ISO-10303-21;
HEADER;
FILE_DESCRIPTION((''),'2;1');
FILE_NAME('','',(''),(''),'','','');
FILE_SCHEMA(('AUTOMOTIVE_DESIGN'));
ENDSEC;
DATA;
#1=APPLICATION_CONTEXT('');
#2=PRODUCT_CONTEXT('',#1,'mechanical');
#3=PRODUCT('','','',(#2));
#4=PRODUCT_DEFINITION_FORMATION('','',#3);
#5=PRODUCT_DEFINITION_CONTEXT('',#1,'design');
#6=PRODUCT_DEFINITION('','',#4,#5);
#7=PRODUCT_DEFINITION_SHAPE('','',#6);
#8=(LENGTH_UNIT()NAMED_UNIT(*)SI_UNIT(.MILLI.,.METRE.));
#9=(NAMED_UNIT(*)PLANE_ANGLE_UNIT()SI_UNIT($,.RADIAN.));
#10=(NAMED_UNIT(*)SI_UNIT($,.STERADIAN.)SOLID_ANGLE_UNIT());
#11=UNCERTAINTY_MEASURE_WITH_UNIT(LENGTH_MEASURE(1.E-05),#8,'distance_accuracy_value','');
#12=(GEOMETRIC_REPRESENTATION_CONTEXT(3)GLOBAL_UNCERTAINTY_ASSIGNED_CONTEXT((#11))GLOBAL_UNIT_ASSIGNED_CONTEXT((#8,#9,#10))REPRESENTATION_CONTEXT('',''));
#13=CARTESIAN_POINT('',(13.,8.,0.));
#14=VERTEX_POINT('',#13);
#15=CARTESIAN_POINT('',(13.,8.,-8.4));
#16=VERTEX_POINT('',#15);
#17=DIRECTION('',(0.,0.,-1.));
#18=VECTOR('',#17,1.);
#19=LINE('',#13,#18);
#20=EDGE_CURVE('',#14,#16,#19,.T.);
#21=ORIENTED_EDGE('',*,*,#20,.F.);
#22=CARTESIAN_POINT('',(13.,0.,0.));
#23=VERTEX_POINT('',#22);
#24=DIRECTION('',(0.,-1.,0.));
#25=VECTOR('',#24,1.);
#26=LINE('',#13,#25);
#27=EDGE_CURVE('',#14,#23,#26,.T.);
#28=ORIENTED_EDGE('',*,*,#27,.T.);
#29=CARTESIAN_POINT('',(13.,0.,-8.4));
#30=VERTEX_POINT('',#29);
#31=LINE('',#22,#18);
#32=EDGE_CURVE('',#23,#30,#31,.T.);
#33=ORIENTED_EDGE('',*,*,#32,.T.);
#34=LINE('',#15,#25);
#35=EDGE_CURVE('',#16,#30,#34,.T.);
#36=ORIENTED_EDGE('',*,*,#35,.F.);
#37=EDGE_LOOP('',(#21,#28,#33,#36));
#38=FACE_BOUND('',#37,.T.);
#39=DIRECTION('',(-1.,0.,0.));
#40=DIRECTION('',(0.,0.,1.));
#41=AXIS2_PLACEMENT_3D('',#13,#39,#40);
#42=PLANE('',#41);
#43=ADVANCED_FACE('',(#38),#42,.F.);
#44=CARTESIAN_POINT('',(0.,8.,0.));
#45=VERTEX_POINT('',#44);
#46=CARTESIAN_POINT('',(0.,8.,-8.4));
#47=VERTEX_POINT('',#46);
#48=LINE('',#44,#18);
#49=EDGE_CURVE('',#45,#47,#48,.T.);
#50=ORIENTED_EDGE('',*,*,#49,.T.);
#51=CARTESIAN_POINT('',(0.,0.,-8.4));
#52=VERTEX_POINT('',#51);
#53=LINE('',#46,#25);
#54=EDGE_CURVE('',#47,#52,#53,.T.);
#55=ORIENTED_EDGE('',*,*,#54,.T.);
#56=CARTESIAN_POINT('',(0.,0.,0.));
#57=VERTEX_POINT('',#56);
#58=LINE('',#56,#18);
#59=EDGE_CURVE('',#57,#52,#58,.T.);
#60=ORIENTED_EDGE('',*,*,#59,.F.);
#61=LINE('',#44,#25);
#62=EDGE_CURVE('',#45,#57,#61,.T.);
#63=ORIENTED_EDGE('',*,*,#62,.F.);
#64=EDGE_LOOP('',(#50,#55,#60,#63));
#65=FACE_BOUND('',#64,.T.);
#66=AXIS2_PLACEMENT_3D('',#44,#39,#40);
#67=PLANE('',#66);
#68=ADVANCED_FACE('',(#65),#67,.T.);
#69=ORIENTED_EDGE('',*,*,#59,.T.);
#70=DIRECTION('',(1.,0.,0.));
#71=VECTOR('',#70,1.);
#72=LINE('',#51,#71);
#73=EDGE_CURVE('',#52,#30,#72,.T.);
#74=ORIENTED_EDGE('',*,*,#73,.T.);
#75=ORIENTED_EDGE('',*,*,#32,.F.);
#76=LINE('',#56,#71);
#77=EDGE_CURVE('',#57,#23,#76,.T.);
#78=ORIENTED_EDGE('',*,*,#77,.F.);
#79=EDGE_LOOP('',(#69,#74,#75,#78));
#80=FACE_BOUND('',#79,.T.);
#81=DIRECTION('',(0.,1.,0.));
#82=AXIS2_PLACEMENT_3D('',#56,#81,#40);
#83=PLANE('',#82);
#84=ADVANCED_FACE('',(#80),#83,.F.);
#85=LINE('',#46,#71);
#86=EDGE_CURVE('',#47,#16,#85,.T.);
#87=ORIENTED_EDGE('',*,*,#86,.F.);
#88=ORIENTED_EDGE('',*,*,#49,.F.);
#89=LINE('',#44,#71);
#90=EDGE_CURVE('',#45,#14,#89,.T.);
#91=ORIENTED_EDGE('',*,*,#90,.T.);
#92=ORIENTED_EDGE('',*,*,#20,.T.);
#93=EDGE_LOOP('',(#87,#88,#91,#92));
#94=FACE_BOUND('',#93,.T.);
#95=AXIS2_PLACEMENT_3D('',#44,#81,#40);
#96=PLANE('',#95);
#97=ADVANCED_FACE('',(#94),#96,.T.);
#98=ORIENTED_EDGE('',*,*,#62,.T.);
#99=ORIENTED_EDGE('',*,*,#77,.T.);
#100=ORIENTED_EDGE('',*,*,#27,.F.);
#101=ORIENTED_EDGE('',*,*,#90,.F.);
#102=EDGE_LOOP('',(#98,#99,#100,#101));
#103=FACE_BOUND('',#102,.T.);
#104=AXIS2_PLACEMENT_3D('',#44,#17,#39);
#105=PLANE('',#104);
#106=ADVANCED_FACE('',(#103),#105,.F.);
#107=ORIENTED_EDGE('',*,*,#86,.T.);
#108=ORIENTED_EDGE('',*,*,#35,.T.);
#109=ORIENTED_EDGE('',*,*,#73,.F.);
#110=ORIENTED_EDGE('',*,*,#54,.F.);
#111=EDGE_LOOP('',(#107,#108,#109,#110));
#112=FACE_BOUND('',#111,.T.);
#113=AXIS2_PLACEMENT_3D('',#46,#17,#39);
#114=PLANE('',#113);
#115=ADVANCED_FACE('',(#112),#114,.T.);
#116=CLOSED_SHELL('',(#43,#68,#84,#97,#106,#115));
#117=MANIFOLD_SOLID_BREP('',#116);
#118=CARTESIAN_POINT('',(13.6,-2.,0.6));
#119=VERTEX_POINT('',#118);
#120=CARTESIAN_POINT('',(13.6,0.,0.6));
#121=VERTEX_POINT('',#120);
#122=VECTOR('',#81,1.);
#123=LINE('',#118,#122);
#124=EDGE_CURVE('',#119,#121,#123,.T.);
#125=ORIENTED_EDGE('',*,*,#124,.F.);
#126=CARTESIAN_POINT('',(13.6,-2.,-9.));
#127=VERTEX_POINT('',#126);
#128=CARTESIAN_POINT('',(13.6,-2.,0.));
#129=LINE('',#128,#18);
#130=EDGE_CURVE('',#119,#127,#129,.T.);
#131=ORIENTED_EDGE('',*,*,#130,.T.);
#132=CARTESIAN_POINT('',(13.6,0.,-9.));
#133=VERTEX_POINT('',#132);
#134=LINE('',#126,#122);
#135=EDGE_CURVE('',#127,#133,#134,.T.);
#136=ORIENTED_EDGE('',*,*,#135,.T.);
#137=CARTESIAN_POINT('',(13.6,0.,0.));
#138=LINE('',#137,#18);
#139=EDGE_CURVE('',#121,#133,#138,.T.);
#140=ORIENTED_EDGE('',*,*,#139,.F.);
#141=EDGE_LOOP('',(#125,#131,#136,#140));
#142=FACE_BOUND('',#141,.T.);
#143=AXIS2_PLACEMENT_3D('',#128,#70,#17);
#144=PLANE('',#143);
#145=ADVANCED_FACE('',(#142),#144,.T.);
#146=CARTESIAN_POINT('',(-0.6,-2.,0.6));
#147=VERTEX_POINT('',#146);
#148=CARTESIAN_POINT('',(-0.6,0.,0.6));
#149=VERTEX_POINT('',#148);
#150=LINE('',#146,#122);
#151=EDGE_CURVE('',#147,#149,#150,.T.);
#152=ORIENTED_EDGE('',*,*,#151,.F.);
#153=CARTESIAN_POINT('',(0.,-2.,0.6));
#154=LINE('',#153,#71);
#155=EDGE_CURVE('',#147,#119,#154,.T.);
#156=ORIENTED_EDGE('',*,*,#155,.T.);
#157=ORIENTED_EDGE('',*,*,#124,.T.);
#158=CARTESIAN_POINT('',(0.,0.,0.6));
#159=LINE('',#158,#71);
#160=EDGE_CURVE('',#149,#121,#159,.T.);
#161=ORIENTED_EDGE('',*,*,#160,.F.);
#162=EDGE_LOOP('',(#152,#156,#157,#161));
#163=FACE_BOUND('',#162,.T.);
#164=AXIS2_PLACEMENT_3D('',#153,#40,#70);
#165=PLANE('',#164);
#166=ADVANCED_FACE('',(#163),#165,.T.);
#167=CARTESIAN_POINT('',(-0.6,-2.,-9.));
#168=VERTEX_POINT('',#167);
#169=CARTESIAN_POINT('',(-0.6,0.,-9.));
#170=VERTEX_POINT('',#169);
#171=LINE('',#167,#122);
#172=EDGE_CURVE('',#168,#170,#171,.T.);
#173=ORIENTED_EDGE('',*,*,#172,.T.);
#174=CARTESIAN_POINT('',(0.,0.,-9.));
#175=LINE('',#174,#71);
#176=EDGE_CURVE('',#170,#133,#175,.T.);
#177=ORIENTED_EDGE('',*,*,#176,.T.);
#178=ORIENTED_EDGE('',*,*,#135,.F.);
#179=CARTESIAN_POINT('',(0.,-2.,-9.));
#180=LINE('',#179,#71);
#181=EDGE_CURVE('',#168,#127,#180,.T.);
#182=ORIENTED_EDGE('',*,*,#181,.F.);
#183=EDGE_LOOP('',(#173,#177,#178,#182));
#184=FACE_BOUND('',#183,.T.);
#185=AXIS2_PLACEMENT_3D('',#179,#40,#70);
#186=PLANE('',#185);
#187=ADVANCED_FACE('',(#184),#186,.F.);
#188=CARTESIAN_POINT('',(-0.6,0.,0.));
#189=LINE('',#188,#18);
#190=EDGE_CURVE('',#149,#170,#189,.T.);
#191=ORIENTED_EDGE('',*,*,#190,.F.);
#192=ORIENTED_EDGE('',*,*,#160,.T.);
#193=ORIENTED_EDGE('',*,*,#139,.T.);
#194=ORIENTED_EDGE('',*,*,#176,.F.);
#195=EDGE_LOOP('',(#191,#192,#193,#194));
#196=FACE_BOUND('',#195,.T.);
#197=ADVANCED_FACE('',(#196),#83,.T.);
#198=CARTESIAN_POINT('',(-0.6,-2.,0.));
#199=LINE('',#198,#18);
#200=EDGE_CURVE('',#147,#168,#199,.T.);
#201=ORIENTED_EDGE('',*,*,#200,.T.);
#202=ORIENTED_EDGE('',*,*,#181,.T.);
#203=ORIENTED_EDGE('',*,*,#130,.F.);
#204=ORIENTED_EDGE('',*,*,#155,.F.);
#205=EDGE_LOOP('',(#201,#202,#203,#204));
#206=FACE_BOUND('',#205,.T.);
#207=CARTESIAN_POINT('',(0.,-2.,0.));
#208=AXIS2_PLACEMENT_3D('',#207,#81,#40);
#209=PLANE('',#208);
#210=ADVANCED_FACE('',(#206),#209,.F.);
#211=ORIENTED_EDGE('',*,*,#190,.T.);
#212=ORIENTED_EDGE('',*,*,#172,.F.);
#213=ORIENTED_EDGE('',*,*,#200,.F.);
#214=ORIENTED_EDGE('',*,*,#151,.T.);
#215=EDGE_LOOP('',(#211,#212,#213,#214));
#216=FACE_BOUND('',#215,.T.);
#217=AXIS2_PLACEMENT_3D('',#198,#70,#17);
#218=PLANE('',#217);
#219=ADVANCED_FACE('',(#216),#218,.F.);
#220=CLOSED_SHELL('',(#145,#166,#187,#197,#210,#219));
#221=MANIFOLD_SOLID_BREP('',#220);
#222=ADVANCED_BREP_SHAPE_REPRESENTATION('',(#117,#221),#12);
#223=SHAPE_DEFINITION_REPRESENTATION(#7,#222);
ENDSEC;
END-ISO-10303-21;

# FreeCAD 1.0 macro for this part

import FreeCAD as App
import Part
import Sketcher

V = App.Vector


def add_polygon(sketch, points):
    """Adds a closed chain of lines whose ends are joined by coincident constraints."""
    first, n = sketch.GeometryCount, len(points)
    for a, b in zip(points, points[1:] + points[:1]):
        sketch.addGeometry(Part.LineSegment(App.Vector(*a, 0), App.Vector(*b, 0)), False)
    for i in range(n):
        sketch.addConstraint(Sketcher.Constraint("Coincident", first + i, 2, first + (i + 1) % n, 1))

doc = App.newDocument("Part")
body = doc.addObject("PartDesign::Body", "Body")

# Sketch on XZ plane
sketch1 = doc.addObject("Sketcher::SketchObject", "Sketch")
body.addObject(sketch1)
sketch1.AttachmentSupport = (doc.XZ_Plane, [""])
sketch1.MapMode = "FlatFace"
add_polygon(sketch1, [(0, -8.4), (0, 0), (13, 0), (13, -8.4)])  # lines 0-3
sketch1.addConstraint([
    Sketcher.Constraint("Vertical", 0),
    Sketcher.Constraint("Horizontal", 1),
    Sketcher.Constraint("Vertical", 2),
    Sketcher.Constraint("Horizontal", 3),
    Sketcher.Constraint("Coincident", 0, 2, -1, 1),
    Sketcher.Constraint("DistanceX", 1, 1, 1, 2, 13.0),
    Sketcher.Constraint("DistanceY", 0, 1, 0, 2, 8.4),
])
pad1 = doc.addObject("PartDesign::Pad", "Pad")
body.addObject(pad1)
pad1.Profile = sketch1
pad1.Length = 8
pad1.Reversed = True
body2 = doc.addObject("PartDesign::Body", "Body001")

# Sketch on XZ plane
sketch2 = doc.addObject("Sketcher::SketchObject", "Sketch001")
body2.addObject(sketch2)
sketch2.AttachmentSupport = (doc.getObject("XZ_Plane001"), [""])
sketch2.MapMode = "FlatFace"
add_polygon(sketch2, [(-0.6, -9), (-0.6, 0.6), (13.6, 0.6), (13.6, -9)])  # lines 0-3
sketch2.addConstraint([
    Sketcher.Constraint("Vertical", 0),
    Sketcher.Constraint("Horizontal", 1),
    Sketcher.Constraint("Vertical", 2),
    Sketcher.Constraint("Horizontal", 3),
    Sketcher.Constraint("DistanceX", 1, 1, 1, 2, 14.2),
    Sketcher.Constraint("DistanceY", 0, 1, 0, 2, 9.6),
    Sketcher.Constraint("DistanceY", 2, 2, -1, 1, 9.0),
    Sketcher.Constraint("DistanceX", 0, 2, -1, 1, 0.6),
])
pad2 = doc.addObject("PartDesign::Pad", "Pad001")
body2.addObject(pad2)
pad2.Profile = sketch2
pad2.Length = 2

doc.recompute()
